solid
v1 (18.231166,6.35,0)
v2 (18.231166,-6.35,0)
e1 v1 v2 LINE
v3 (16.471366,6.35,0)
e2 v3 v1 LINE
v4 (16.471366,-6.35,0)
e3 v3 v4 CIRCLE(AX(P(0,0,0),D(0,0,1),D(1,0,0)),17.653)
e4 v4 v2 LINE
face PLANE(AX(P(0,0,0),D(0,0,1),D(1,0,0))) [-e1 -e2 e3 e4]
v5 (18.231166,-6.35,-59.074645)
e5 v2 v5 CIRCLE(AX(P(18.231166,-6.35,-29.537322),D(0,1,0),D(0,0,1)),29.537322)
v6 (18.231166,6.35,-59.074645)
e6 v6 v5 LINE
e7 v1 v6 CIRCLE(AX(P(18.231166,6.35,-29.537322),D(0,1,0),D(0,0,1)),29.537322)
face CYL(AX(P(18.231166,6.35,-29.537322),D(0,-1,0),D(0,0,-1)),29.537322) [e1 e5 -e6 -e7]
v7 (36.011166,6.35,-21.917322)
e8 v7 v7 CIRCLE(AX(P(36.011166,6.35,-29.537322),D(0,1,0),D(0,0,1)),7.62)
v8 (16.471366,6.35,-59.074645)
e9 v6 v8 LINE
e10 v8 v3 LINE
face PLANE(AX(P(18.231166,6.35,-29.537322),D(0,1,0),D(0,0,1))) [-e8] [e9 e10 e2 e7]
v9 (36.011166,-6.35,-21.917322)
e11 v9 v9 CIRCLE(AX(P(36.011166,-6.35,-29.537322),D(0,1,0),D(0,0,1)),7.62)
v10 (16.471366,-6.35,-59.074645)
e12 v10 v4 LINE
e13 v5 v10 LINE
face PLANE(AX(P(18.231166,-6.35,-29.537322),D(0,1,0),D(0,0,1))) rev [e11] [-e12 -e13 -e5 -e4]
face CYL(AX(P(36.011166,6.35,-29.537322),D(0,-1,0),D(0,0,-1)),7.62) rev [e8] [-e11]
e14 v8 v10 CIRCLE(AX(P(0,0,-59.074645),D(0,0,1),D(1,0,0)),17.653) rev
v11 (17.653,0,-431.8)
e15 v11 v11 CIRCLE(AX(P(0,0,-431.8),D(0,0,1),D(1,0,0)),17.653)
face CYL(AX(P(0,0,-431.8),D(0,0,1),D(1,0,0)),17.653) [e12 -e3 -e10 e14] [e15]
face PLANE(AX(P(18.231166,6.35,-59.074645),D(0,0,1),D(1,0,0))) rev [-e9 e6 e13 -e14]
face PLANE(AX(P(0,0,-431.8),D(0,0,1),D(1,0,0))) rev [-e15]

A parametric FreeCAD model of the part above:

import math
import FreeCAD as App
import Part
import Sketcher
from FreeCAD import Vector
Q = App.Units.Quantity

doc = App.newDocument("Part")
body = doc.addObject("PartDesign::Body", "Body")

sketch1 = body.newObject("Sketcher::SketchObject", "Sketch")
sketch1.AttachmentSupport = (doc.getObject("XY_Plane"), [""])
sketch1.MapMode = "FlatFace"
sketch1.addGeometry(Part.Circle(Vector(0, 0, 0), Vector(0, 0, 1), 18), False)
sketch1.addConstraint([
    Sketcher.Constraint("Coincident", 0, 3, -1, 1),
    Sketcher.Constraint("Diameter", 0, Q("1.39 in")),
])
pad1 = body.newObject("PartDesign::Pad", "Pad")
pad1.Profile = sketch1
pad1.Length = Q("17 in")
pad1.Reversed = True

sketch2 = body.newObject("Sketcher::SketchObject", "Sketch001")
sketch2.AttachmentSupport = (doc.getObject("XZ_Plane"), [""])
sketch2.MapMode = "FlatFace"
sketch2.addGeometry([
    Part.LineSegment(Vector(9, -59, 0), Vector(9, 0, 0)),
    Part.LineSegment(Vector(9, 0, 0), Vector(18, 0, 0)),
    Part.ArcOfCircle(Part.Circle(Vector(18, -30, 0), Vector(0, 0, 1), 30), math.radians(-90), math.radians(90)),
    Part.LineSegment(Vector(18, -59, 0), Vector(9, -59, 0)),
    Part.Circle(Vector(36, -30, 0), Vector(0, 0, 1), 8),
], False)
sketch2.addConstraint([
    Sketcher.Constraint("Coincident", 0, 2, 1, 1),
    Sketcher.Constraint("Tangent", 1, 2, 2, 2),
    Sketcher.Constraint("Tangent", 2, 1, 3, 1),
    Sketcher.Constraint("Coincident", 3, 2, 0, 1),
    Sketcher.Constraint("Vertical", 0),
    Sketcher.Constraint("Horizontal", 1),
    Sketcher.Constraint("Horizontal", 3),
    Sketcher.Constraint("PointOnObject", 0, 2, -1),
    Sketcher.Constraint("Horizontal", 2, 3, 4, 3),
    Sketcher.Constraint("Diameter", 4, Q("0.6 in")),
    Sketcher.Constraint("DistanceX", 2, 3, 4, 3, Q("0.7 in")),
    Sketcher.Constraint("Radius", 2, Q("29.537322 mm")),
    Sketcher.Constraint("DistanceX", 1, 1, 1, 2, Q("8.974553 mm")),
    Sketcher.Constraint("DistanceX", -1, 1, 2, 3, Q("18.231166 mm")),
])
pad2 = body.newObject("PartDesign::Pad", "Pad001")
pad2.Profile = sketch2
pad2.Type = "TwoLengths"
pad2.Length = Q("0.25 in")
pad2.Length2 = Q("0.25 in")
pad2.Reversed = True

doc.recompute()
